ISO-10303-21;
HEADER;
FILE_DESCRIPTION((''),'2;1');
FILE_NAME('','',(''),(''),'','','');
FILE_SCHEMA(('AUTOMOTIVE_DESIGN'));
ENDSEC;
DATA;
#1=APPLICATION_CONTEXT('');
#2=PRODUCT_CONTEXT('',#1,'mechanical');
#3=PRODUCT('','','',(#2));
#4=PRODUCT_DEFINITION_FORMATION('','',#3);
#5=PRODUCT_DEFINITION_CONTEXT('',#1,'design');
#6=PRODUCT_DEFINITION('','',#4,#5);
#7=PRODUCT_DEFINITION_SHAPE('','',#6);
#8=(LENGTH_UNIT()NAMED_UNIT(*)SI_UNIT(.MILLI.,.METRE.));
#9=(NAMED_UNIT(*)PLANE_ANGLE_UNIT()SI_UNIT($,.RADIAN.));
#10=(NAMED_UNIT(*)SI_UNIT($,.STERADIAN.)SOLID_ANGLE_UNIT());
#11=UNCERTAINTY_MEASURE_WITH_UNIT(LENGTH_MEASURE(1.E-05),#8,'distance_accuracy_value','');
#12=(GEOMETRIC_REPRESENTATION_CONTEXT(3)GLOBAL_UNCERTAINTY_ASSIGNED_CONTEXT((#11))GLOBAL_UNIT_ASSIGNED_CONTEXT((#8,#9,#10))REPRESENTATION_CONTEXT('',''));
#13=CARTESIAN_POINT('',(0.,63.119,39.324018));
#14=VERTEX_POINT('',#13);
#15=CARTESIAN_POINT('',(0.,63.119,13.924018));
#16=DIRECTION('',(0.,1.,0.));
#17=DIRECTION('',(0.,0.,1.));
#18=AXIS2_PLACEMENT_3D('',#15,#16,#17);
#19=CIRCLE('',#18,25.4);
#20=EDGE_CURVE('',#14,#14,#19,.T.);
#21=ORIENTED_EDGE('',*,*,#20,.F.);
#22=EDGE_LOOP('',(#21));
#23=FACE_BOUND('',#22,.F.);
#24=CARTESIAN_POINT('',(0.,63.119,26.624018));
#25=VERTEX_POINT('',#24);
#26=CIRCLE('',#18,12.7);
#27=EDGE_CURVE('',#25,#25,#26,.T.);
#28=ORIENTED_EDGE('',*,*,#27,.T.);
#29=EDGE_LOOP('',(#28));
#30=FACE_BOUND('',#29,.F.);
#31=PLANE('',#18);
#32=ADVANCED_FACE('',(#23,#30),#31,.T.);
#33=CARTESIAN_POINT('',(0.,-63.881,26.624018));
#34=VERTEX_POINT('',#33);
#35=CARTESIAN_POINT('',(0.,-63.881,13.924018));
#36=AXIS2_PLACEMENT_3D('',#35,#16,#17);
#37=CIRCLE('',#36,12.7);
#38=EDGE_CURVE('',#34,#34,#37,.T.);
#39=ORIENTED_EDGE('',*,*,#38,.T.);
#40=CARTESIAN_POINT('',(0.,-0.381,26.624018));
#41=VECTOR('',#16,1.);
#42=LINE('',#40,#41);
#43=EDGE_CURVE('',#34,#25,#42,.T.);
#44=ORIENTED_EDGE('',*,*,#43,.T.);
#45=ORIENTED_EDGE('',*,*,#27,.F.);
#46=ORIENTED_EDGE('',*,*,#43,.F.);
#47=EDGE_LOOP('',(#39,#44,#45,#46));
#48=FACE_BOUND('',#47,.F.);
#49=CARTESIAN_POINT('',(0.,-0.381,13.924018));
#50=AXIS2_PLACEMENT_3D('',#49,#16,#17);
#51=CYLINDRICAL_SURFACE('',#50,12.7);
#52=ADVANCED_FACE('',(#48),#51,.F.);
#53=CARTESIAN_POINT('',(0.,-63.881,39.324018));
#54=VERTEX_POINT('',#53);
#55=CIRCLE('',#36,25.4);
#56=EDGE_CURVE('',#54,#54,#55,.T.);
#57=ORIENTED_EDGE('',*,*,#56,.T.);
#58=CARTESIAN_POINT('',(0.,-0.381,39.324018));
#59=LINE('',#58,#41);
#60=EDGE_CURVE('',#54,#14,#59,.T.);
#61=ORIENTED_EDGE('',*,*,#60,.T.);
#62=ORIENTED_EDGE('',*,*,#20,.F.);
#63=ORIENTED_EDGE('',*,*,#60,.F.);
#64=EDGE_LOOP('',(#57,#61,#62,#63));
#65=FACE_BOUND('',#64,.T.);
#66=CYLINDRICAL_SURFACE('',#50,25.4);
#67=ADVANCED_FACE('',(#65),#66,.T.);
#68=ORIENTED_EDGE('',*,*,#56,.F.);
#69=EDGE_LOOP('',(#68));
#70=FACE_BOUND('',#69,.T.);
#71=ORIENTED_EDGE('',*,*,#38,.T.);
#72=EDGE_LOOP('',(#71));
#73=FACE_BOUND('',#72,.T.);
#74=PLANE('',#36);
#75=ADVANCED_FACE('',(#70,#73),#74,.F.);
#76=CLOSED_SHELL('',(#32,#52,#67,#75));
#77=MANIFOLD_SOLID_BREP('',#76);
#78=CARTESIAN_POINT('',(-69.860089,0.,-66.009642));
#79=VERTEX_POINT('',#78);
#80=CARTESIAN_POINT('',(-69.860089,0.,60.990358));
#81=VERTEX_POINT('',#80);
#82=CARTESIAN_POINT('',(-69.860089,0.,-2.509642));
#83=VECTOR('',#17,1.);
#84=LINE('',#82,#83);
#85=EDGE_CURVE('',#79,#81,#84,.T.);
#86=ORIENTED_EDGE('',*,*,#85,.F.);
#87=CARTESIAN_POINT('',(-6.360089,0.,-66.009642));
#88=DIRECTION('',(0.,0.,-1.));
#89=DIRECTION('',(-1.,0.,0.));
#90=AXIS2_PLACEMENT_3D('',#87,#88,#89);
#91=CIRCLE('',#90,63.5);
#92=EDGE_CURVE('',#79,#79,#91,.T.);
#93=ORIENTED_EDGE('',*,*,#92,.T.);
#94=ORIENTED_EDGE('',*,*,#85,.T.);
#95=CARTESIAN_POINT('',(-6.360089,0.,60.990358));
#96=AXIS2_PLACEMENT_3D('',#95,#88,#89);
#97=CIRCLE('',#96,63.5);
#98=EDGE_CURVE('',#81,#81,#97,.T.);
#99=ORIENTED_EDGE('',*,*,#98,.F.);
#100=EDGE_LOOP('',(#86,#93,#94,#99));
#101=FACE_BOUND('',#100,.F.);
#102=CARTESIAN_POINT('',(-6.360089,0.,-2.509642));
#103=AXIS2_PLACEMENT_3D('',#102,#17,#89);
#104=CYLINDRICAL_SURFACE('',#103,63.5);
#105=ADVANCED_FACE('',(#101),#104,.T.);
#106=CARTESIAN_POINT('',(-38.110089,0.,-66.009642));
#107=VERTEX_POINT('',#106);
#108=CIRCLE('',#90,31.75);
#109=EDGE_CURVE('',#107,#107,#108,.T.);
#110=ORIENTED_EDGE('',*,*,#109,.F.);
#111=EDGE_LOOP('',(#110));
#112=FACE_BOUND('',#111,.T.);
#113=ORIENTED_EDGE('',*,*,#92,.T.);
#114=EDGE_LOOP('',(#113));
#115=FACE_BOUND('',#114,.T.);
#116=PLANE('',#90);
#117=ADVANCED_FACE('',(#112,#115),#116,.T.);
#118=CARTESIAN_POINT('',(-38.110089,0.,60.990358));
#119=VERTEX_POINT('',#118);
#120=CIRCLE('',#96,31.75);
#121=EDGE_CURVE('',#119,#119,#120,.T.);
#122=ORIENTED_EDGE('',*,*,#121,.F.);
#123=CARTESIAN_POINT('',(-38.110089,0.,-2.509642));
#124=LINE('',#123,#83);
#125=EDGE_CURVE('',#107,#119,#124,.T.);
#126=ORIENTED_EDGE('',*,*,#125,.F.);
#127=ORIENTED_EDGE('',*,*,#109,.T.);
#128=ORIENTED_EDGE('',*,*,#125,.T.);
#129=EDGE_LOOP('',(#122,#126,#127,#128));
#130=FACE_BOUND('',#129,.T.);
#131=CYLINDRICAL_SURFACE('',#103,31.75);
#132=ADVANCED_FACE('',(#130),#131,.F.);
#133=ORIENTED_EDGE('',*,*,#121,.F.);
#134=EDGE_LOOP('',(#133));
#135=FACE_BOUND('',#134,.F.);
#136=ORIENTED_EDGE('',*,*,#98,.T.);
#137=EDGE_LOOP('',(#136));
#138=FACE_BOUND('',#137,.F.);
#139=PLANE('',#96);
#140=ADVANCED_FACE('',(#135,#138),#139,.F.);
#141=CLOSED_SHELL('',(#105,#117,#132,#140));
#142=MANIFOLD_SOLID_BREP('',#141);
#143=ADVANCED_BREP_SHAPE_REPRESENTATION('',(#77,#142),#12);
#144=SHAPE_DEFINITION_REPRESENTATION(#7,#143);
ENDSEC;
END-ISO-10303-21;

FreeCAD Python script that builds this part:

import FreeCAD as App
import Part
import Sketcher

V = App.Vector
Q = App.Units.Quantity


def add_polygon(sketch, points):
    """Adds a closed chain of lines whose ends are joined by coincident constraints."""
    first, n = sketch.GeometryCount, len(points)
    for a, b in zip(points, points[1:] + points[:1]):
        sketch.addGeometry(Part.LineSegment(App.Vector(*a, 0), App.Vector(*b, 0)), False)
    for i in range(n):
        sketch.addConstraint(Sketcher.Constraint("Coincident", first + i, 2, first + (i + 1) % n, 1))

doc = App.newDocument("Part")
params = doc.addObject("Spreadsheet::Sheet", "Params")
for row, (alias, value) in enumerate([
    ("sketch1_height", "5 in"),
    ("sketch1_width", "1.25 in"),
    ("revolution_angle", "360 deg"),
    ("sketch2_width", "5 in"),
    ("sketch2_height", "0.5 in"),
    ("revolution2_angle", "360 deg"),
], start=1):
    params.set(f"A{row}", alias)
    params.set(f"B{row}", "=" + value)
    params.setAlias(f"B{row}", alias)

body = doc.addObject("PartDesign::Body", "Body")

# Sketch on XZ plane
sketch1 = body.newObject("Sketcher::SketchObject", "Sketch")
sketch1.AttachmentSupport = (doc.getObject("XZ_Plane"), [""])
sketch1.MapMode = "FlatFace"
add_polygon(sketch1, [(-70, 61), (-70, -66), (-38, -66), (-38, 61)])  # lines 0-3
sketch1.addGeometry(Part.LineSegment(V(-6, 61, 0), V(-6, -66, 0)), True)  # axis
sketch1.addConstraint([
    Sketcher.Constraint("Vertical", 0),
    Sketcher.Constraint("Horizontal", 1),
    Sketcher.Constraint("Vertical", 2),
    Sketcher.Constraint("Horizontal", 3),
    Sketcher.Constraint("Vertical", 4),
    Sketcher.Constraint("Horizontal", 3, 2, 4, 1),
    Sketcher.Constraint("Horizontal", 1, 2, 4, 2),
    Sketcher.Constraint("DistanceY", 0, 2, 0, 1, Q("5 in")),
    Sketcher.Constraint("DistanceX", 1, 1, 1, 2, Q("1.25 in")),
    Sketcher.Constraint("DistanceX", 3, 2, 4, 1, Q("2.5 in")),
    Sketcher.Constraint("DistanceX", 0, 2, -1, 1, Q("69.860089 mm")),
    Sketcher.Constraint("DistanceY", 0, 2, -1, 1, Q("66.009642 mm")),
])
sketch1.setExpression("Constraints[11]", "Params.sketch1_height")
sketch1.setExpression("Constraints[12]", "Params.sketch1_width")
revolution = body.newObject("PartDesign::Revolution", "Revolution")
revolution.Profile = sketch1
revolution.ReferenceAxis = (sketch1, ["Axis0"])
revolution.setExpression("Angle", "Params.revolution_angle")
body2 = doc.addObject("PartDesign::Body", "Body001")

# Sketch on YZ plane
sketch2 = body2.newObject("Sketcher::SketchObject", "Sketch001")
sketch2.AttachmentSupport = (doc.getObject("YZ_Plane001"), [""])
sketch2.MapMode = "FlatFace"
add_polygon(sketch2, [(-64, 39), (-64, 27), (63, 27), (63, 39)])  # lines 0-3
sketch2.addGeometry(Part.LineSegment(V(-64, 14, 0), V(63, 14, 0)), True)  # axis
sketch2.addConstraint([
    Sketcher.Constraint("Vertical", 0),
    Sketcher.Constraint("Horizontal", 1),
    Sketcher.Constraint("Vertical", 2),
    Sketcher.Constraint("Horizontal", 3),
    Sketcher.Constraint("Horizontal", 4),
    Sketcher.Constraint("Vertical", 3, 2, 4, 1),
    Sketcher.Constraint("Vertical", 2, 2, 4, 2),
    Sketcher.Constraint("DistanceX", 1, 1, 1, 2, Q("5 in")),
    Sketcher.Constraint("DistanceY", 0, 2, 0, 1, Q("0.5 in")),
    Sketcher.Constraint("DistanceY", 4, 1, 3, 2, Q("1 in")),
    Sketcher.Constraint("DistanceX", 0, 2, -1, 1, Q("2.515 in")),
    Sketcher.Constraint("DistanceY", -1, 1, 2, 2, Q("39.324018 mm")),
])
sketch2.setExpression("Constraints[11]", "Params.sketch2_width")
sketch2.setExpression("Constraints[12]", "Params.sketch2_height")
revolution2 = body2.newObject("PartDesign::Revolution", "Revolution001")
revolution2.Profile = sketch2
revolution2.ReferenceAxis = (sketch2, ["Axis0"])
revolution2.setExpression("Angle", "Params.revolution2_angle")

doc.recompute()
